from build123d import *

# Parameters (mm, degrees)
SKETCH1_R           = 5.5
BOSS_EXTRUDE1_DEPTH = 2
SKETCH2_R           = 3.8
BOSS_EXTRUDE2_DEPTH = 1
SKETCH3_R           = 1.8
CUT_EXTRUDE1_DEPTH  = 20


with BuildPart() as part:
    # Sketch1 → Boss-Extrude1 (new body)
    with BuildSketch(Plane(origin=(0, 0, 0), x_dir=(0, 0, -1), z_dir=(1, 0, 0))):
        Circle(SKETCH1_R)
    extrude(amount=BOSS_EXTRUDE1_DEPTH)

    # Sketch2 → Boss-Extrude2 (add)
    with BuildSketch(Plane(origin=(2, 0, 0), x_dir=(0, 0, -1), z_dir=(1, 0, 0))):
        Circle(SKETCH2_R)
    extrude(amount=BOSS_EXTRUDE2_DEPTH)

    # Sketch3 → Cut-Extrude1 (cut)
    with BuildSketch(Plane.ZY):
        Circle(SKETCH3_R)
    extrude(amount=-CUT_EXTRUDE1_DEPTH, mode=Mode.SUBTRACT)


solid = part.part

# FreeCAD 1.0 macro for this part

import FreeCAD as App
import Part
import Sketcher

doc = App.newDocument("Part")
body = doc.addObject("PartDesign::Body", "Body")

# Sketch on YZ plane
sketch1 = doc.addObject("Sketcher::SketchObject", "Sketch")
body.addObject(sketch1)
sketch1.AttachmentSupport = (doc.YZ_Plane, [""])
sketch1.MapMode = "FlatFace"
sketch1.addGeometry(Part.Circle(App.Vector(0, 0, 0), App.Vector(0, 0, 1), 6), False)
sketch1.addConstraint([
    Sketcher.Constraint("Coincident", 0, 3, -1, 1),
    Sketcher.Constraint("Diameter", 0, 11.0),
])
pad1 = doc.addObject("PartDesign::Pad", "Pad")
body.addObject(pad1)
pad1.Profile = sketch1
pad1.Length = 2

# Sketch on YZ plane
sketch2 = doc.addObject("Sketcher::SketchObject", "Sketch001")
body.addObject(sketch2)
sketch2.AttachmentSupport = (doc.YZ_Plane, [""])
sketch2.MapMode = "FlatFace"
sketch2.AttachmentOffset = App.Placement(App.Vector(0, 0, 2), App.Rotation())
sketch2.addGeometry(Part.Circle(App.Vector(0, 0, 0), App.Vector(0, 0, 1), 3.8), False)
sketch2.addConstraint([
    Sketcher.Constraint("Coincident", 0, 3, -1, 1),
    Sketcher.Constraint("Diameter", 0, 7.6),
])
pad2 = doc.addObject("PartDesign::Pad", "Pad001")
body.addObject(pad2)
pad2.Profile = sketch2
pad2.Length = 1

# Sketch on YZ plane
sketch3 = doc.addObject("Sketcher::SketchObject", "Sketch002")
body.addObject(sketch3)
sketch3.AttachmentSupport = (doc.YZ_Plane, [""])
sketch3.MapMode = "FlatFace"
sketch3.addGeometry(Part.Circle(App.Vector(0, 0, 0), App.Vector(0, 0, 1), 1.8), False)
sketch3.addConstraint([
    Sketcher.Constraint("Coincident", 0, 3, -1, 1),
    Sketcher.Constraint("Diameter", 0, 3.6),
])
pocket1 = doc.addObject("PartDesign::Pocket", "Pocket")
body.addObject(pocket1)
pocket1.Profile = sketch3
pocket1.Length = 20
pocket1.Reversed = True

doc.recompute()
